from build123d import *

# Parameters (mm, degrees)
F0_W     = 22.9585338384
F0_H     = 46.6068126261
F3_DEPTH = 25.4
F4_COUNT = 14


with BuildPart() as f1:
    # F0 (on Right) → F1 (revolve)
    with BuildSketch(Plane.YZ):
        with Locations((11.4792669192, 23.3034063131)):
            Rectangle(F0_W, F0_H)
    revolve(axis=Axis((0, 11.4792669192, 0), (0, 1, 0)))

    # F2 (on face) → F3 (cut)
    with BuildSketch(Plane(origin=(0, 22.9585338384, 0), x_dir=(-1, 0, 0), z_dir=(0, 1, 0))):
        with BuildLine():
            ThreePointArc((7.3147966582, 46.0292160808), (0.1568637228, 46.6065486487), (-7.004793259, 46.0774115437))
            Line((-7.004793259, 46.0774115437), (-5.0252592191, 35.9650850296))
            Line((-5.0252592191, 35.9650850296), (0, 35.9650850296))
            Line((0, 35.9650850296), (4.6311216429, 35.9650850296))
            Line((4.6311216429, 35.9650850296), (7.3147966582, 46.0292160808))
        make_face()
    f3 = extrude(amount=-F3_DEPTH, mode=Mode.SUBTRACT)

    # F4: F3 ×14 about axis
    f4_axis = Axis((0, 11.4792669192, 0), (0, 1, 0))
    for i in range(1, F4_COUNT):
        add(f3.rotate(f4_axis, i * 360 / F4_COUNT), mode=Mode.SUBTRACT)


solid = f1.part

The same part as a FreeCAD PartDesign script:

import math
import FreeCAD as App
import Part
import Sketcher

V = App.Vector
Q = App.Units.Quantity

doc = App.newDocument("Part")
body = doc.addObject("PartDesign::Body", "Body")

# Sketch on YZ plane
sketch1 = body.newObject("Sketcher::SketchObject", "Sketch")
sketch1.AttachmentSupport = (doc.getObject("YZ_Plane"), [""])
sketch1.MapMode = "FlatFace"
sketch1.addGeometry(Part.LineSegment(V(0, 46.606813, 0), V(0, 0, 0)), False)
sketch1.addGeometry(Part.LineSegment(V(0, 0, 0), V(22.958534, 0, 0)), False)
sketch1.addGeometry(Part.LineSegment(V(22.958534, 0, 0), V(22.958534, 46.606813, 0)), False)
sketch1.addGeometry(Part.LineSegment(V(22.958534, 46.606813, 0), V(0, 46.606813, 0)), False)
sketch1.addConstraint(Sketcher.Constraint("Coincident", 0, 2, 1, 1))
sketch1.addConstraint(Sketcher.Constraint("Coincident", 1, 2, 2, 1))
sketch1.addConstraint(Sketcher.Constraint("Coincident", 2, 2, 3, 1))
sketch1.addConstraint(Sketcher.Constraint("Coincident", 3, 2, 0, 1))
sketch1.addConstraint(Sketcher.Constraint("Vertical", 0))
sketch1.addConstraint(Sketcher.Constraint("Horizontal", 1))
sketch1.addConstraint(Sketcher.Constraint("Vertical", 2))
sketch1.addConstraint(Sketcher.Constraint("Horizontal", 3))
sketch1.addConstraint(Sketcher.Constraint("Coincident", 0, 2, -1, 1))
sketch1.addConstraint(Sketcher.Constraint("DistanceX", 1, 1, 1, 2, Q("22.958534 mm")))
sketch1.addConstraint(Sketcher.Constraint("DistanceY", 0, 2, 0, 1, Q("46.606813 mm")))
revolution = body.newObject("PartDesign::Revolution", "Revolution")
revolution.Profile = sketch1
revolution.ReferenceAxis = (sketch1, ["H_Axis"])
revolution.Angle = 360

# Sketch on XZ plane
sketch2 = body.newObject("Sketcher::SketchObject", "Sketch001")
sketch2.AttachmentSupport = (doc.getObject("XZ_Plane"), [""])
sketch2.MapMode = "FlatFace"
sketch2.AttachmentOffset = App.Placement(V(0, 0, -22.958534), App.Rotation())
sketch2.addGeometry(Part.ArcOfCircle(Part.Circle(V(0, 0, 0), V(0, 0, 1), 46.606813), math.radians(81.35595), math.radians(99.02973)), False)
sketch2.addGeometry(Part.LineSegment(V(7.004793, 46.077412, 0), V(5.025259, 35.965085, 0)), False)
sketch2.addGeometry(Part.LineSegment(V(5.025259, 35.965085, 0), V(-4.631122, 35.965085, 0)), False)
sketch2.addGeometry(Part.LineSegment(V(-4.631122, 35.965085, 0), V(-7.314797, 46.029216, 0)), False)
sketch2.addConstraint(Sketcher.Constraint("Coincident", 0, 1, 1, 1))
sketch2.addConstraint(Sketcher.Constraint("Coincident", 1, 2, 2, 1))
sketch2.addConstraint(Sketcher.Constraint("Coincident", 2, 2, 3, 1))
sketch2.addConstraint(Sketcher.Constraint("Coincident", 3, 2, 0, 2))
sketch2.addConstraint(Sketcher.Constraint("Horizontal", 2))
sketch2.addConstraint(Sketcher.Constraint("Coincident", 0, 3, -1, 1))
sketch2.addConstraint(Sketcher.Constraint("Radius", 0, Q("46.606813 mm")))
sketch2.addConstraint(Sketcher.Constraint("DistanceX", 2, 2, 2, 1, Q("9.656381 mm")))
sketch2.addConstraint(Sketcher.Constraint("DistanceY", -1, 1, 0, 1, Q("46.077412 mm")))
sketch2.addConstraint(Sketcher.Constraint("DistanceX", -1, 1, 1, 2, Q("5.025259 mm")))
sketch2.addConstraint(Sketcher.Constraint("DistanceY", 2, 2, 3, 2, Q("10.064131 mm")))
sketch2.addConstraint(Sketcher.Constraint("DistanceX", 3, 2, 0, 1, Q("14.31959 mm")))
pocket1 = body.newObject("PartDesign::Pocket", "Pocket")
pocket1.Profile = sketch2
pocket1.Length = Q("1 in")
pocket1.Reversed = True
doc.recompute()

polarpattern = body.newObject("PartDesign::PolarPattern", "PolarPattern")
polarpattern.Originals = [pocket1]
polarpattern.Axis = (doc.getObject("Y_Axis"), [""])
polarpattern.Angle = 360
polarpattern.Occurrences = 14
body.Tip = polarpattern

doc.recompute()
